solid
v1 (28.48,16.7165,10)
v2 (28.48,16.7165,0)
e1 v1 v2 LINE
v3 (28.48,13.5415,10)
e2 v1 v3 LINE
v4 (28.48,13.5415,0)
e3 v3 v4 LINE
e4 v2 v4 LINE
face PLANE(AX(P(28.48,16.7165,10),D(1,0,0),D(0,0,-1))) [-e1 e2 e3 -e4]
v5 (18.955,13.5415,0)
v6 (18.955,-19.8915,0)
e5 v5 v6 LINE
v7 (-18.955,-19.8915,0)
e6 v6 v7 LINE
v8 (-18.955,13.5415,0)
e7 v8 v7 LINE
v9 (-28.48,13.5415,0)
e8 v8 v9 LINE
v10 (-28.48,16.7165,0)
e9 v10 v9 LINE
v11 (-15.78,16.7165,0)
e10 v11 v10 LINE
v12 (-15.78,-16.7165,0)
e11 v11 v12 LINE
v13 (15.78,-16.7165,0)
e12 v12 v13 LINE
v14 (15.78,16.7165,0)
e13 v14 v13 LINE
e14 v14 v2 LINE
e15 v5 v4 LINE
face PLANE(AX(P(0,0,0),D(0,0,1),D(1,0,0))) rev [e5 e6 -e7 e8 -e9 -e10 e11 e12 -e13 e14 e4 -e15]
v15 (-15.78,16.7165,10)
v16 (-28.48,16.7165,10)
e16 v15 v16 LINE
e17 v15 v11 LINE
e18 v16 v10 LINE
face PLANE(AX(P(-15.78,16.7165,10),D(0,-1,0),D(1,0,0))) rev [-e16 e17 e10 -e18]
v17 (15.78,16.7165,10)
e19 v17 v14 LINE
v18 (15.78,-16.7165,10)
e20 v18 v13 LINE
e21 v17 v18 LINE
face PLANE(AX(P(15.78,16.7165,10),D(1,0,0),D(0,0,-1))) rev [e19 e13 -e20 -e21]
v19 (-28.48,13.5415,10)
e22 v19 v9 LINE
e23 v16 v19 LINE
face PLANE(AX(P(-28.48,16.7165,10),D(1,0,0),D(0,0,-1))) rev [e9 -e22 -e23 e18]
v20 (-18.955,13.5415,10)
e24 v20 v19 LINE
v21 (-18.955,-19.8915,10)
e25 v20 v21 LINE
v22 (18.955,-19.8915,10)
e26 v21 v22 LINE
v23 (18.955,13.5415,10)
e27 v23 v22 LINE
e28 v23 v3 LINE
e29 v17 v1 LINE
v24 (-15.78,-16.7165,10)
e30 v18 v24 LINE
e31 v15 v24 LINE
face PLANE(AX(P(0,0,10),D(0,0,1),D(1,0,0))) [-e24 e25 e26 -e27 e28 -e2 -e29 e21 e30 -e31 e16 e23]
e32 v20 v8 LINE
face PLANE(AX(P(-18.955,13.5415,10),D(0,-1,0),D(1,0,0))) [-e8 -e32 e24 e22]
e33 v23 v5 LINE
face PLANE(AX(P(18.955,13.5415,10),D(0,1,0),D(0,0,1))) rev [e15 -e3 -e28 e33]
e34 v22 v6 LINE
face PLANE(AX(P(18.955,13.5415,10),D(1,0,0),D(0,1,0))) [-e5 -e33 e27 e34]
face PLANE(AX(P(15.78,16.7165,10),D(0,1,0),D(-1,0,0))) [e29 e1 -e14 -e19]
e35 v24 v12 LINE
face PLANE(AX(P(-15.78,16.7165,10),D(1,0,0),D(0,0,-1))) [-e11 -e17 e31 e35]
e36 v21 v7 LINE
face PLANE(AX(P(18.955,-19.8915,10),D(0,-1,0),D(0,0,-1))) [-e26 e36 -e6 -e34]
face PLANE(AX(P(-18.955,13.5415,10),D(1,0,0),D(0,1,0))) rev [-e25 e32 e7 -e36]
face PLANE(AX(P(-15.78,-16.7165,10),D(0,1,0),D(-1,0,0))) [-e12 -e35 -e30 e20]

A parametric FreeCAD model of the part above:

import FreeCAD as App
import Part
import Sketcher
Q = App.Units.Quantity

doc = App.newDocument("Part")
body = doc.addObject("PartDesign::Body", "Body")

# Sketch on XY plane
sketch1 = body.newObject("Sketcher::SketchObject", "Sketch")
sketch1.AttachmentSupport = (doc.getObject("XY_Plane"), [""])
sketch1.MapMode = "FlatFace"
sketch1.addGeometry([
    Part.LineSegment(App.Vector(-19, 13.5, 0), App.Vector(-19, -19.9, 0)),  # 0
    Part.LineSegment(App.Vector(-19, -19.9, 0), App.Vector(19, -19.9, 0)),  # 1
    Part.LineSegment(App.Vector(19, -19.9, 0), App.Vector(19, 13.5, 0)),  # 2
    Part.LineSegment(App.Vector(19, 13.5, 0), App.Vector(28.5, 13.5, 0)),  # 3
    Part.LineSegment(App.Vector(28.5, 13.5, 0), App.Vector(28.5, 16.7, 0)),  # 4
    Part.LineSegment(App.Vector(28.5, 16.7, 0), App.Vector(15.8, 16.7, 0)),  # 5
    Part.LineSegment(App.Vector(15.8, 16.7, 0), App.Vector(15.8, -16.7, 0)),  # 6
    Part.LineSegment(App.Vector(15.8, -16.7, 0), App.Vector(-15.8, -16.7, 0)),  # 7
    Part.LineSegment(App.Vector(-15.8, -16.7, 0), App.Vector(-15.8, 16.7, 0)),  # 8
    Part.LineSegment(App.Vector(-15.8, 16.7, 0), App.Vector(-28.5, 16.7, 0)),  # 9
    Part.LineSegment(App.Vector(-28.5, 16.7, 0), App.Vector(-28.5, 13.5, 0)),  # 10
    Part.LineSegment(App.Vector(-28.5, 13.5, 0), App.Vector(-19, 13.5, 0)),  # 11
], False)
sketch1.addConstraint([
    Sketcher.Constraint("Coincident", 0, 2, 1, 1),
    Sketcher.Constraint("Coincident", 1, 2, 2, 1),
    Sketcher.Constraint("Coincident", 2, 2, 3, 1),
    Sketcher.Constraint("Coincident", 3, 2, 4, 1),
    Sketcher.Constraint("Coincident", 4, 2, 5, 1),
    Sketcher.Constraint("Coincident", 5, 2, 6, 1),
    Sketcher.Constraint("Coincident", 6, 2, 7, 1),
    Sketcher.Constraint("Coincident", 7, 2, 8, 1),
    Sketcher.Constraint("Coincident", 8, 2, 9, 1),
    Sketcher.Constraint("Coincident", 9, 2, 10, 1),
    Sketcher.Constraint("Coincident", 10, 2, 11, 1),
    Sketcher.Constraint("Coincident", 11, 2, 0, 1),
    Sketcher.Constraint("Vertical", 0),
    Sketcher.Constraint("Horizontal", 1),
    Sketcher.Constraint("Vertical", 2),
    Sketcher.Constraint("Horizontal", 3),
    Sketcher.Constraint("Vertical", 4),
    Sketcher.Constraint("Horizontal", 5),
    Sketcher.Constraint("Vertical", 6),
    Sketcher.Constraint("Horizontal", 7),
    Sketcher.Constraint("Vertical", 8),
    Sketcher.Constraint("Horizontal", 9),
    Sketcher.Constraint("Vertical", 10),
    Sketcher.Constraint("Horizontal", 11),
    Sketcher.Constraint("Symmetric", 5, 2, 7, 2, -1, 1),
    Sketcher.Constraint("Symmetric", 4, 2, 9, 2, -2),
    Sketcher.Constraint("Symmetric", 2, 2, 11, 2, -2),
    Sketcher.Constraint("Equal", 2, 6),
    Sketcher.Constraint("DistanceX", 5, 2, 5, 1, Q("0.5 in")),
    Sketcher.Constraint("DistanceX", 3, 1, 3, 2, Q("0.375 in")),
    Sketcher.Constraint("DistanceY", 4, 1, 4, 2, Q("0.125 in")),
    Sketcher.Constraint("DistanceX", 1, 1, 1, 2, 37.91),
    Sketcher.Constraint("DistanceY", 0, 2, 0, 1, 33.433),
])
pad1 = body.newObject("PartDesign::Pad", "Pad")
pad1.Profile = sketch1
pad1.Length = 10

doc.recompute()
